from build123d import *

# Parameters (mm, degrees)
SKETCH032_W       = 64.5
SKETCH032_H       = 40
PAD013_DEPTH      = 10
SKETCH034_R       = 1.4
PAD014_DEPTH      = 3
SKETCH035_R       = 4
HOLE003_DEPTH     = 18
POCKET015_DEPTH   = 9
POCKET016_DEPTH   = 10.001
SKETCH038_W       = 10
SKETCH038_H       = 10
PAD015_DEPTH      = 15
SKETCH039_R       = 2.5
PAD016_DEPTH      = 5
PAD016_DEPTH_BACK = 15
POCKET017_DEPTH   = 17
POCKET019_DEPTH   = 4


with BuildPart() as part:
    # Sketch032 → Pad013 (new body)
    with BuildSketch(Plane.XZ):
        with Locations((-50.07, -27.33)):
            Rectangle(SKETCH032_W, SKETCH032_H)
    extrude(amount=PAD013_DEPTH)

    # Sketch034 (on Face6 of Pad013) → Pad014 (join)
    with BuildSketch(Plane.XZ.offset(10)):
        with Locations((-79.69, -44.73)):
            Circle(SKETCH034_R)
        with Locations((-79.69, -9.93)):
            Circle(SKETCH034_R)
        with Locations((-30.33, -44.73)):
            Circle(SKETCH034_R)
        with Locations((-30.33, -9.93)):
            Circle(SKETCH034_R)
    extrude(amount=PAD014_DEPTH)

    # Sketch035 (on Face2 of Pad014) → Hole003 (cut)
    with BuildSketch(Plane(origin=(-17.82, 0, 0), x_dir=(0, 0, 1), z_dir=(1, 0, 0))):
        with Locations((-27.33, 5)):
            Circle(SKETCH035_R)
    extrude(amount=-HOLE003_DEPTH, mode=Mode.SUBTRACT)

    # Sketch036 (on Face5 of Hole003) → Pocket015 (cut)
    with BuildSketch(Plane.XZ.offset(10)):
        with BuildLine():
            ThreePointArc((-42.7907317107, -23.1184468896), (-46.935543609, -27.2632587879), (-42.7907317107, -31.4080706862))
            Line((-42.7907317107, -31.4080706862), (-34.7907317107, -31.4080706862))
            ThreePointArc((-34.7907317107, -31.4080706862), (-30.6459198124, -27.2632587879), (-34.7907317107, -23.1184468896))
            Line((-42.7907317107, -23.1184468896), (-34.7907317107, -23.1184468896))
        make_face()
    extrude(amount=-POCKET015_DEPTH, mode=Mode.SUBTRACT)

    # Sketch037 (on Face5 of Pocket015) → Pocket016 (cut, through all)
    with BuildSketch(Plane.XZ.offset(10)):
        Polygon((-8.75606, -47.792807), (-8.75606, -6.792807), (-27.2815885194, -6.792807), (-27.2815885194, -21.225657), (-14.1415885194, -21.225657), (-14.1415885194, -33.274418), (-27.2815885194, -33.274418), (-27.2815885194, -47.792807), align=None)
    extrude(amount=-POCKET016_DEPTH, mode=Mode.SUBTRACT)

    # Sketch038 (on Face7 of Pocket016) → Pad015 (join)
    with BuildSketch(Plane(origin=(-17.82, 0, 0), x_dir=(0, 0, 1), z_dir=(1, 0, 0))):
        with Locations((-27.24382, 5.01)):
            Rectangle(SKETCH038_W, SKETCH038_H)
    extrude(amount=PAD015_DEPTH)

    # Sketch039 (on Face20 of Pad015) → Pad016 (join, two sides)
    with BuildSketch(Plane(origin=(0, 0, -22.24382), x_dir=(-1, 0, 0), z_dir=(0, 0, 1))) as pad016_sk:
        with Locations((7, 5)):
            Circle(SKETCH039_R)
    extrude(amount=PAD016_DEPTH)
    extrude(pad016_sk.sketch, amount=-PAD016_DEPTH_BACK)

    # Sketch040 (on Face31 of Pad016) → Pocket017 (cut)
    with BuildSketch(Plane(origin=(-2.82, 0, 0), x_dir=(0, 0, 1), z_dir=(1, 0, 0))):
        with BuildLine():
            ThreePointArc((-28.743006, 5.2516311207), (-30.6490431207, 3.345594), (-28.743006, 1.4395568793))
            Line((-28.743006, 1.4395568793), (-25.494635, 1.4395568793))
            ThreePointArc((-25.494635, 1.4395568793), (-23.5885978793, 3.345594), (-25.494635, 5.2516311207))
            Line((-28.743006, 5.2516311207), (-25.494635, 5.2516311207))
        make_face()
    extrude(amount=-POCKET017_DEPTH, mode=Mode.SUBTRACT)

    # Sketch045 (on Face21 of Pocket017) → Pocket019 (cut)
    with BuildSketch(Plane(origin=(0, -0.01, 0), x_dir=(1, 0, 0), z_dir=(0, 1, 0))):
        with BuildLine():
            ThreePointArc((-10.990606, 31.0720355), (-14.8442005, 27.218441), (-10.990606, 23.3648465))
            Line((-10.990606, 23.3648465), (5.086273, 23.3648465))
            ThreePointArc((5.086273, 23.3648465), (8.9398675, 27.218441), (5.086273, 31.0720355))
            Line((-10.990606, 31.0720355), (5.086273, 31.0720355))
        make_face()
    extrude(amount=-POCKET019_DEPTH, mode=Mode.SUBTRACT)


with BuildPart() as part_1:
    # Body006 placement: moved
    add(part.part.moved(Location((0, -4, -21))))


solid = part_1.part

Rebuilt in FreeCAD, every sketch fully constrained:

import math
import FreeCAD as App
import Part
import Sketcher

V = App.Vector
Q = App.Units.Quantity

doc = App.newDocument("Part")
params = doc.addObject("Spreadsheet::Sheet", "Params")
for row, (alias, value) in enumerate([
    ("sketch1_height", "40 mm"),
    ("sketch1_width", "64.5 mm"),
    ("pad1_length", "10 mm"),
    ("sketch2_diameter", "2.8 mm"),
    ("pad2_length", "3 mm"),
    ("sketch3_diameter", "8 mm"),
    ("pocket1_length", "18 mm"),
    ("sketch4_width", "8 mm"),
    ("pocket2_length", "9 mm"),
    ("sketch5_height", "41 mm"),
    ("sketch5_width", "13.14 mm"),
    ("sketch6_width", "10 mm"),
    ("pad3_length", "15 mm"),
    ("sketch7_diameter", "5 mm"),
    ("pad4_length", "5 mm"),
    ("pad4_length2", "15 mm"),
    ("pocket4_length", "17 mm"),
    ("pocket5_length", "4 mm"),
], start=1):
    params.set(f"A{row}", alias)
    params.set(f"B{row}", "=" + value)
    params.setAlias(f"B{row}", alias)

body = doc.addObject("PartDesign::Body", "Body")

sketch1 = body.newObject("Sketcher::SketchObject", "Sketch")
sketch1.AttachmentSupport = (doc.getObject("XZ_Plane"), [""])
sketch1.MapMode = "FlatFace"
sketch1.addGeometry([
    Part.LineSegment(V(-82, -7, 0), V(-82, -47, 0)),
    Part.LineSegment(V(-82, -47, 0), V(-18, -47, 0)),
    Part.LineSegment(V(-18, -47, 0), V(-18, -7, 0)),
    Part.LineSegment(V(-18, -7, 0), V(-82, -7, 0)),
], False)
sketch1.addConstraint([
    Sketcher.Constraint("Coincident", 0, 2, 1, 1),
    Sketcher.Constraint("Coincident", 1, 2, 2, 1),
    Sketcher.Constraint("Coincident", 2, 2, 3, 1),
    Sketcher.Constraint("Coincident", 3, 2, 0, 1),
    Sketcher.Constraint("Vertical", 0),
    Sketcher.Constraint("Horizontal", 1),
    Sketcher.Constraint("Vertical", 2),
    Sketcher.Constraint("Horizontal", 3),
    Sketcher.Constraint("DistanceY", 0, 2, 0, 1, Q("40 mm")),
    Sketcher.Constraint("DistanceX", 1, 1, 1, 2, Q("64.5 mm")),
    Sketcher.Constraint("DistanceX", 0, 2, -1, 1, Q("82.32 mm")),
    Sketcher.Constraint("DistanceY", 0, 2, -1, 1, Q("47.33 mm")),
])
sketch1.setExpression("Constraints[8]", "Params.sketch1_height")
sketch1.setExpression("Constraints[9]", "Params.sketch1_width")
pad1 = body.newObject("PartDesign::Pad", "Pad")
pad1.Profile = sketch1
pad1.setExpression("Length", "Params.pad1_length")

sketch2 = body.newObject("Sketcher::SketchObject", "Sketch001")
sketch2.AttachmentSupport = (doc.getObject("XZ_Plane"), [""])
sketch2.MapMode = "FlatFace"
sketch2.AttachmentOffset = App.Placement(V(0, 0, 10), App.Rotation())
sketch2.addGeometry([
    Part.Circle(V(-79.7, -44.7, 0), V(0, 0, 1), 1.4),
    Part.Circle(V(-79.7, -9.9, 0), V(0, 0, 1), 1.4),
    Part.Circle(V(-30.3, -44.7, 0), V(0, 0, 1), 1.4),
    Part.Circle(V(-30.3, -9.9, 0), V(0, 0, 1), 1.4),
], False)
sketch2.addConstraint([
    Sketcher.Constraint("Equal", 0, 1),
    Sketcher.Constraint("Equal", 1, 2),
    Sketcher.Constraint("Equal", 2, 3),
    Sketcher.Constraint("Horizontal", 0, 3, 2, 3),
    Sketcher.Constraint("Horizontal", 1, 3, 3, 3),
    Sketcher.Constraint("Vertical", 0, 3, 1, 3),
    Sketcher.Constraint("Vertical", 2, 3, 3, 3),
    Sketcher.Constraint("Diameter", 0, Q("2.8 mm")),
    Sketcher.Constraint("DistanceY", 0, 3, 1, 3, Q("34.8 mm")),
    Sketcher.Constraint("DistanceX", 0, 3, -1, 1, Q("79.69 mm")),
    Sketcher.Constraint("DistanceY", 0, 3, -1, 1, Q("44.73 mm")),
    Sketcher.Constraint("DistanceX", 2, 3, -1, 1, Q("30.33 mm")),
])
sketch2.setExpression("Constraints[7]", "Params.sketch2_diameter")
pad2 = body.newObject("PartDesign::Pad", "Pad001")
pad2.Profile = sketch2
pad2.setExpression("Length", "Params.pad2_length")

sketch3 = body.newObject("Sketcher::SketchObject", "Sketch002")
sketch3.AttachmentSupport = (doc.getObject("YZ_Plane"), [""])
sketch3.MapMode = "FlatFace"
sketch3.AttachmentOffset = App.Placement(V(0, 0, -17.82), App.Rotation())
sketch3.addGeometry(Part.Circle(V(-5, -27.3, 0), V(0, 0, 1), 4), False)
sketch3.addConstraint([
    Sketcher.Constraint("Diameter", 0, Q("8 mm")),
    Sketcher.Constraint("DistanceX", 0, 3, -1, 1, Q("5 mm")),
    Sketcher.Constraint("DistanceY", 0, 3, -1, 1, Q("27.33 mm")),
])
sketch3.setExpression("Constraints[0]", "Params.sketch3_diameter")
pocket1 = body.newObject("PartDesign::Pocket", "Pocket")
pocket1.Profile = sketch3
pocket1.setExpression("Length", "Params.pocket1_length")

sketch4 = body.newObject("Sketcher::SketchObject", "Sketch003")
sketch4.AttachmentSupport = (doc.getObject("XZ_Plane"), [""])
sketch4.MapMode = "FlatFace"
sketch4.AttachmentOffset = App.Placement(V(0, 0, 10), App.Rotation())
sketch4.addGeometry([
    Part.ArcOfCircle(Part.Circle(V(-42.8, -27.3, 0), V(0, 0, 1), 4.1), math.radians(90), math.radians(270)),
    Part.LineSegment(V(-42.8, -31.4, 0), V(-34.8, -31.4, 0)),
    Part.ArcOfCircle(Part.Circle(V(-34.8, -27.3, 0), V(0, 0, 1), 4.1), math.radians(-90), math.radians(90)),
    Part.LineSegment(V(-34.8, -23.1, 0), V(-42.8, -23.1, 0)),
], False)
sketch4.addConstraint([
    Sketcher.Constraint("Tangent", 0, 2, 1, 1),
    Sketcher.Constraint("Tangent", 1, 2, 2, 1),
    Sketcher.Constraint("Tangent", 2, 2, 3, 1),
    Sketcher.Constraint("Tangent", 3, 2, 0, 1),
    Sketcher.Constraint("Horizontal", 1),
    Sketcher.Constraint("Horizontal", 3),
    Sketcher.Constraint("DistanceX", 1, 1, 1, 2, Q("8 mm")),
    Sketcher.Constraint("Radius", 0, Q("4.144812 mm")),
    Sketcher.Constraint("DistanceX", 0, 3, -1, 1, Q("42.790732 mm")),
    Sketcher.Constraint("DistanceY", 0, 3, -1, 1, Q("27.263259 mm")),
])
sketch4.setExpression("Constraints[6]", "Params.sketch4_width")
pocket2 = body.newObject("PartDesign::Pocket", "Pocket001")
pocket2.Profile = sketch4
pocket2.setExpression("Length", "Params.pocket2_length")

sketch5 = body.newObject("Sketcher::SketchObject", "Sketch004")
sketch5.AttachmentSupport = (doc.getObject("XZ_Plane"), [""])
sketch5.MapMode = "FlatFace"
sketch5.AttachmentOffset = App.Placement(V(0, 0, 10), App.Rotation())
sketch5.addGeometry([
    Part.LineSegment(V(-9, -48, 0), V(-9, -7, 0)),
    Part.LineSegment(V(-9, -7, 0), V(-27, -7, 0)),
    Part.LineSegment(V(-27, -7, 0), V(-27, -21, 0)),
    Part.LineSegment(V(-27, -21, 0), V(-14, -21, 0)),
    Part.LineSegment(V(-14, -21, 0), V(-14, -33, 0)),
    Part.LineSegment(V(-14, -33, 0), V(-27, -33, 0)),
    Part.LineSegment(V(-27, -33, 0), V(-27, -48, 0)),
    Part.LineSegment(V(-27, -48, 0), V(-9, -48, 0)),
], False)
sketch5.addConstraint([
    Sketcher.Constraint("Coincident", 0, 2, 1, 1),
    Sketcher.Constraint("Coincident", 1, 2, 2, 1),
    Sketcher.Constraint("Coincident", 2, 2, 3, 1),
    Sketcher.Constraint("Coincident", 3, 2, 4, 1),
    Sketcher.Constraint("Coincident", 4, 2, 5, 1),
    Sketcher.Constraint("Coincident", 5, 2, 6, 1),
    Sketcher.Constraint("Coincident", 6, 2, 7, 1),
    Sketcher.Constraint("Coincident", 7, 2, 0, 1),
    Sketcher.Constraint("Vertical", 0),
    Sketcher.Constraint("Horizontal", 1),
    Sketcher.Constraint("Vertical", 2),
    Sketcher.Constraint("Horizontal", 3),
    Sketcher.Constraint("Vertical", 4),
    Sketcher.Constraint("Horizontal", 5),
    Sketcher.Constraint("Vertical", 6),
    Sketcher.Constraint("Horizontal", 7),
    Sketcher.Constraint("Vertical", 2, 2, 5, 2),
    Sketcher.Constraint("DistanceY", 0, 1, 0, 2, Q("41 mm")),
    Sketcher.Constraint("DistanceX", 3, 1, 3, 2, Q("13.14 mm")),
    Sketcher.Constraint("DistanceX", 1, 2, 1, 1, Q("18.525529 mm")),
    Sketcher.Constraint("DistanceY", 2, 2, 2, 1, Q("14.43285 mm")),
    Sketcher.Constraint("DistanceY", 4, 2, 4, 1, Q("12.048761 mm")),
    Sketcher.Constraint("DistanceX", 0, 2, -1, 1, Q("8.75606 mm")),
    Sketcher.Constraint("DistanceY", 0, 2, -1, 1, Q("6.792807 mm")),
])
sketch5.setExpression("Constraints[17]", "Params.sketch5_height")
sketch5.setExpression("Constraints[18]", "Params.sketch5_width")
pocket3 = body.newObject("PartDesign::Pocket", "Pocket002")
pocket3.Profile = sketch5
pocket3.Type = "ThroughAll"

sketch6 = body.newObject("Sketcher::SketchObject", "Sketch005")
sketch6.AttachmentSupport = (doc.getObject("YZ_Plane"), [""])
sketch6.MapMode = "FlatFace"
sketch6.AttachmentOffset = App.Placement(V(0, 0, -17.82), App.Rotation())
sketch6.addGeometry([
    Part.LineSegment(V(-10, -32, 0), V(0, -32, 0)),
    Part.LineSegment(V(0, -32, 0), V(0, -22, 0)),
    Part.LineSegment(V(0, -22, 0), V(-10, -22, 0)),
    Part.LineSegment(V(-10, -22, 0), V(-10, -32, 0)),
], False)
sketch6.addConstraint([
    Sketcher.Constraint("Coincident", 0, 2, 1, 1),
    Sketcher.Constraint("Coincident", 1, 2, 2, 1),
    Sketcher.Constraint("Coincident", 2, 2, 3, 1),
    Sketcher.Constraint("Coincident", 3, 2, 0, 1),
    Sketcher.Constraint("Horizontal", 0),
    Sketcher.Constraint("Vertical", 1),
    Sketcher.Constraint("Horizontal", 2),
    Sketcher.Constraint("Vertical", 3),
    Sketcher.Constraint("Equal", 2, 1),
    Sketcher.Constraint("DistanceX", 0, 1, 0, 2, Q("10 mm")),
    Sketcher.Constraint("DistanceX", 0, 2, -1, 1, Q("0.01 mm")),
    Sketcher.Constraint("DistanceY", 0, 2, -1, 1, Q("32.24382 mm")),
])
sketch6.setExpression("Constraints[9]", "Params.sketch6_width")
pad3 = body.newObject("PartDesign::Pad", "Pad002")
pad3.Profile = sketch6
pad3.setExpression("Length", "Params.pad3_length")

sketch7 = body.newObject("Sketcher::SketchObject", "Sketch006")
sketch7.AttachmentSupport = (doc.getObject("XY_Plane"), [""])
sketch7.MapMode = "FlatFace"
sketch7.AttachmentOffset = App.Placement(V(0, 0, -22.24382), App.Rotation())
sketch7.addGeometry(Part.Circle(V(-7, -5, 0), V(0, 0, 1), 2.5), False)
sketch7.addConstraint([
    Sketcher.Constraint("Diameter", 0, Q("5 mm")),
    Sketcher.Constraint("DistanceX", 0, 3, -1, 1, Q("7 mm")),
    Sketcher.Constraint("DistanceY", 0, 3, -1, 1, Q("5 mm")),
])
sketch7.setExpression("Constraints[0]", "Params.sketch7_diameter")
pad4 = body.newObject("PartDesign::Pad", "Pad003")
pad4.Profile = sketch7
pad4.Type = "TwoLengths"
pad4.setExpression("Length", "Params.pad4_length")
pad4.setExpression("Length2", "Params.pad4_length2")

sketch8 = body.newObject("Sketcher::SketchObject", "Sketch007")
sketch8.AttachmentSupport = (doc.getObject("YZ_Plane"), [""])
sketch8.MapMode = "FlatFace"
sketch8.AttachmentOffset = App.Placement(V(0, 0, -2.82), App.Rotation())
sketch8.addGeometry([
    Part.ArcOfCircle(Part.Circle(V(-3.3, -28.7, 0), V(0, 0, 1), 1.9), math.radians(180), math.radians(360)),
    Part.LineSegment(V(-1.4, -28.7, 0), V(-1.4, -25.5, 0)),
    Part.ArcOfCircle(Part.Circle(V(-3.3, -25.5, 0), V(0, 0, 1), 1.9), math.radians(0), math.radians(180)),
    Part.LineSegment(V(-5.3, -25.5, 0), V(-5.3, -28.7, 0)),
], False)
sketch8.addConstraint([
    Sketcher.Constraint("Tangent", 0, 2, 1, 1),
    Sketcher.Constraint("Tangent", 1, 2, 2, 1),
    Sketcher.Constraint("Tangent", 2, 2, 3, 1),
    Sketcher.Constraint("Tangent", 3, 2, 0, 1),
    Sketcher.Constraint("Vertical", 1),
    Sketcher.Constraint("Vertical", 3),
    Sketcher.Constraint("Radius", 0, Q("1.906037 mm")),
    Sketcher.Constraint("DistanceY", 1, 1, 1, 2, Q("3.248371 mm")),
    Sketcher.Constraint("DistanceX", 2, 2, -1, 1, Q("5.251631 mm")),
    Sketcher.Constraint("DistanceY", 0, 3, -1, 1, Q("28.743006 mm")),
])
pocket4 = body.newObject("PartDesign::Pocket", "Pocket003")
pocket4.Profile = sketch8
pocket4.setExpression("Length", "Params.pocket4_length")

sketch9 = body.newObject("Sketcher::SketchObject", "Sketch008")
sketch9.AttachmentSupport = (doc.getObject("XZ_Plane"), [""])
sketch9.MapMode = "FlatFace"
sketch9.AttachmentOffset = App.Placement(V(0, 0, 0.01), App.Rotation())
sketch9.addGeometry([
    Part.ArcOfCircle(Part.Circle(V(-11, -27.2, 0), V(0, 0, 1), 3.9), math.radians(90), math.radians(270)),
    Part.LineSegment(V(-11, -23.4, 0), V(5.1, -23.4, 0)),
    Part.ArcOfCircle(Part.Circle(V(5.1, -27.2, 0), V(0, 0, 1), 3.9), math.radians(-90), math.radians(90)),
    Part.LineSegment(V(5.1, -31.1, 0), V(-11, -31.1, 0)),
], False)
sketch9.addConstraint([
    Sketcher.Constraint("Tangent", 0, 1, 1, 1),
    Sketcher.Constraint("Tangent", 1, 2, 2, 2),
    Sketcher.Constraint("Tangent", 2, 1, 3, 1),
    Sketcher.Constraint("Tangent", 3, 2, 0, 2),
    Sketcher.Constraint("Horizontal", 1),
    Sketcher.Constraint("Horizontal", 3),
    Sketcher.Constraint("Radius", 0, Q("3.853594 mm")),
    Sketcher.Constraint("DistanceX", 1, 1, 1, 2, Q("16.076879 mm")),
    Sketcher.Constraint("DistanceY", 0, 3, -1, 1, Q("27.218441 mm")),
    Sketcher.Constraint("DistanceX", 0, 3, -1, 1, Q("10.990606 mm")),
])
pocket5 = body.newObject("PartDesign::Pocket", "Pocket004")
pocket5.Profile = sketch9
pocket5.setExpression("Length", "Params.pocket5_length")
pocket5.Reversed = True
body2 = doc.addObject("PartDesign::Body", "Body001")
doc.recompute()

body.Placement = App.Placement(V(0, -4, -21), App.Rotation(V(0, 0, 1), 0))
boolean = body2.newObject("PartDesign::Boolean", "Boolean")
boolean.Type = "Fuse"
boolean.addObjects([body])

doc.recompute()
